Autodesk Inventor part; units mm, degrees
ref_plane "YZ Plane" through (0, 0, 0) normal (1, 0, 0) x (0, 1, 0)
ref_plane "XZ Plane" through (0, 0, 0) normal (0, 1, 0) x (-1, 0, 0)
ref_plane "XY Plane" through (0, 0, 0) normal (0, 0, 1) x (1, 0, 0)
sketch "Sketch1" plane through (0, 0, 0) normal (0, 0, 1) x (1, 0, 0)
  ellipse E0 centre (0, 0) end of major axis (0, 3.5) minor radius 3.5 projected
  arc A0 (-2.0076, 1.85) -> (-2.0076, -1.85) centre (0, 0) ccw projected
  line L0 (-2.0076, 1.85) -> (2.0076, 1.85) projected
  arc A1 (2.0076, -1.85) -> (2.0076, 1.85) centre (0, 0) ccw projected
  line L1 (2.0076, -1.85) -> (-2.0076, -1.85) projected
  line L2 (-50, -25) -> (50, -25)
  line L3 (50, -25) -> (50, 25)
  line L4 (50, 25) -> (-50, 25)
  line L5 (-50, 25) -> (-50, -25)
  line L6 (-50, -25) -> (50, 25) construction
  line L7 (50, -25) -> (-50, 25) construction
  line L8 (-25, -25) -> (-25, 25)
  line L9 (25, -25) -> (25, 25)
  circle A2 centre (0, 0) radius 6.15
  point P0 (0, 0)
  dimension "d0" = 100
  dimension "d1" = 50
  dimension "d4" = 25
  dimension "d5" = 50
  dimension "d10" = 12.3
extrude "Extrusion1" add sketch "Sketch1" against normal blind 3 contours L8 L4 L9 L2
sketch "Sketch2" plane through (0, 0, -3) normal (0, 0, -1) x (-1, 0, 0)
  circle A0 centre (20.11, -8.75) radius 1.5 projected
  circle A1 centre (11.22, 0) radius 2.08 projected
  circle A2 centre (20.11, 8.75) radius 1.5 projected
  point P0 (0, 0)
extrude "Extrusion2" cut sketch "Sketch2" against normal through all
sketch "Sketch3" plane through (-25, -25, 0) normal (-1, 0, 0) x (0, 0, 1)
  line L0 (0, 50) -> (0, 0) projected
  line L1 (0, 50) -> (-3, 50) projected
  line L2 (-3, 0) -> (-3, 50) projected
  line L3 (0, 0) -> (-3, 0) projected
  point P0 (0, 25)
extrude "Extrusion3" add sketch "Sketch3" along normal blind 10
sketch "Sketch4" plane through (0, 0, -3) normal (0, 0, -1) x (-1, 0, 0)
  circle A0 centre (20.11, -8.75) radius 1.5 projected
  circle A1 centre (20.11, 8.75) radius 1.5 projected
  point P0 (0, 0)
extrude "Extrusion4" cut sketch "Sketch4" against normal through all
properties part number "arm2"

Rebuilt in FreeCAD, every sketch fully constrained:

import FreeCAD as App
import Part
import Sketcher

V = App.Vector
Q = App.Units.Quantity


def add_polygon(sketch, points):
    """Adds a closed chain of lines whose ends are joined by coincident constraints."""
    first, n = sketch.GeometryCount, len(points)
    for a, b in zip(points, points[1:] + points[:1]):
        sketch.addGeometry(Part.LineSegment(App.Vector(*a, 0), App.Vector(*b, 0)), False)
    for i in range(n):
        sketch.addConstraint(Sketcher.Constraint("Coincident", first + i, 2, first + (i + 1) % n, 1))

doc = App.newDocument("Part")
body = doc.addObject("PartDesign::Body", "Body")

sketch1 = doc.addObject("Sketcher::SketchObject", "Sketch")
body.addObject(sketch1)
sketch1.AttachmentSupport = (doc.XY_Plane, [""])
sketch1.MapMode = "FlatFace"
add_polygon(sketch1, [(-25, 25), (-25, -25), (25, -25), (25, 25)])
sketch1.addGeometry(Part.Circle(V(0, 0, 0), V(0, 0, 1), 6.15), False)
sketch1.addConstraint([
    Sketcher.Constraint("Vertical", 0),
    Sketcher.Constraint("Horizontal", 1),
    Sketcher.Constraint("Vertical", 2),
    Sketcher.Constraint("Horizontal", 3),
    Sketcher.Constraint("Coincident", 4, 3, -1, 1),
    Sketcher.Constraint("Symmetric", 0, 2, 2, 2, -1, 1),
    Sketcher.Constraint("Equal", 3, 0),
    Sketcher.Constraint("Diameter", 4, Q("12.3 mm")),
    Sketcher.Constraint("DistanceX", 1, 1, 1, 2, Q("50 mm")),
])
pad1 = doc.addObject("PartDesign::Pad", "Pad")
body.addObject(pad1)
pad1.Profile = sketch1
pad1.Length = 3
pad1.Reversed = True

sketch2 = doc.addObject("Sketcher::SketchObject", "Sketch001")
body.addObject(sketch2)
sketch2.AttachmentSupport = (doc.XY_Plane, [""])
sketch2.MapMode = "FlatFace"
sketch2.AttachmentOffset = App.Placement(V(0, 0, -3), App.Rotation())
sketch2.addGeometry([
    Part.Circle(V(-20.11, -8.75, 0), V(0, 0, 1), 1.5),
    Part.Circle(V(-11.22, 0, 0), V(0, 0, 1), 2.08),
    Part.Circle(V(-20.11, 8.75, 0), V(0, 0, 1), 1.5),
], False)
sketch2.addConstraint([
    Sketcher.Constraint("Equal", 0, 2),
    Sketcher.Constraint("Symmetric", 0, 3, 2, 3, -1),
    Sketcher.Constraint("PointOnObject", 1, 3, -1),
    Sketcher.Constraint("Diameter", 0, Q("3 mm")),
    Sketcher.Constraint("Diameter", 1, Q("4.16 mm")),
    Sketcher.Constraint("DistanceY", 0, 3, 2, 3, Q("17.5 mm")),
    Sketcher.Constraint("DistanceX", 0, 3, -1, 1, Q("20.11 mm")),
    Sketcher.Constraint("DistanceX", 1, 3, -1, 1, Q("11.22 mm")),
])
pocket1 = doc.addObject("PartDesign::Pocket", "Pocket")
body.addObject(pocket1)
pocket1.Profile = sketch2
pocket1.Type = "ThroughAll"
pocket1.Reversed = True

sketch3 = doc.addObject("Sketcher::SketchObject", "Sketch002")
body.addObject(sketch3)
sketch3.AttachmentSupport = (doc.YZ_Plane, [""])
sketch3.MapMode = "FlatFace"
sketch3.AttachmentOffset = App.Placement(V(0, 0, -25), App.Rotation())
add_polygon(sketch3, [(-25, 0), (25, 0), (25, -3), (-25, -3)])
sketch3.addConstraint([
    Sketcher.Constraint("Horizontal", 0),
    Sketcher.Constraint("Vertical", 1),
    Sketcher.Constraint("Horizontal", 2),
    Sketcher.Constraint("Vertical", 3),
    Sketcher.Constraint("Symmetric", 0, 2, 3, 2, -1, 1),
    Sketcher.Constraint("DistanceX", 0, 1, 0, 2, Q("50 mm")),
    Sketcher.Constraint("DistanceY", 1, 2, 1, 1, Q("3 mm")),
])
pad2 = doc.addObject("PartDesign::Pad", "Pad001")
body.addObject(pad2)
pad2.Profile = sketch3
pad2.Length = 10
pad2.Reversed = True

sketch4 = doc.addObject("Sketcher::SketchObject", "Sketch003")
body.addObject(sketch4)
sketch4.AttachmentSupport = (doc.XY_Plane, [""])
sketch4.MapMode = "FlatFace"
sketch4.AttachmentOffset = App.Placement(V(0, 0, -3), App.Rotation())
sketch4.addGeometry([
    Part.Circle(V(-20.11, -8.75, 0), V(0, 0, 1), 1.5),
    Part.Circle(V(-20.11, 8.75, 0), V(0, 0, 1), 1.5),
], False)
sketch4.addConstraint([
    Sketcher.Constraint("Equal", 0, 1),
    Sketcher.Constraint("Symmetric", 0, 3, 1, 3, -1),
    Sketcher.Constraint("Diameter", 0, Q("3 mm")),
    Sketcher.Constraint("DistanceY", 0, 3, 1, 3, Q("17.5 mm")),
    Sketcher.Constraint("DistanceX", 0, 3, -1, 1, Q("20.11 mm")),
])
pocket2 = doc.addObject("PartDesign::Pocket", "Pocket001")
body.addObject(pocket2)
pocket2.Profile = sketch4
pocket2.Type = "ThroughAll"
pocket2.Reversed = True

doc.recompute()
